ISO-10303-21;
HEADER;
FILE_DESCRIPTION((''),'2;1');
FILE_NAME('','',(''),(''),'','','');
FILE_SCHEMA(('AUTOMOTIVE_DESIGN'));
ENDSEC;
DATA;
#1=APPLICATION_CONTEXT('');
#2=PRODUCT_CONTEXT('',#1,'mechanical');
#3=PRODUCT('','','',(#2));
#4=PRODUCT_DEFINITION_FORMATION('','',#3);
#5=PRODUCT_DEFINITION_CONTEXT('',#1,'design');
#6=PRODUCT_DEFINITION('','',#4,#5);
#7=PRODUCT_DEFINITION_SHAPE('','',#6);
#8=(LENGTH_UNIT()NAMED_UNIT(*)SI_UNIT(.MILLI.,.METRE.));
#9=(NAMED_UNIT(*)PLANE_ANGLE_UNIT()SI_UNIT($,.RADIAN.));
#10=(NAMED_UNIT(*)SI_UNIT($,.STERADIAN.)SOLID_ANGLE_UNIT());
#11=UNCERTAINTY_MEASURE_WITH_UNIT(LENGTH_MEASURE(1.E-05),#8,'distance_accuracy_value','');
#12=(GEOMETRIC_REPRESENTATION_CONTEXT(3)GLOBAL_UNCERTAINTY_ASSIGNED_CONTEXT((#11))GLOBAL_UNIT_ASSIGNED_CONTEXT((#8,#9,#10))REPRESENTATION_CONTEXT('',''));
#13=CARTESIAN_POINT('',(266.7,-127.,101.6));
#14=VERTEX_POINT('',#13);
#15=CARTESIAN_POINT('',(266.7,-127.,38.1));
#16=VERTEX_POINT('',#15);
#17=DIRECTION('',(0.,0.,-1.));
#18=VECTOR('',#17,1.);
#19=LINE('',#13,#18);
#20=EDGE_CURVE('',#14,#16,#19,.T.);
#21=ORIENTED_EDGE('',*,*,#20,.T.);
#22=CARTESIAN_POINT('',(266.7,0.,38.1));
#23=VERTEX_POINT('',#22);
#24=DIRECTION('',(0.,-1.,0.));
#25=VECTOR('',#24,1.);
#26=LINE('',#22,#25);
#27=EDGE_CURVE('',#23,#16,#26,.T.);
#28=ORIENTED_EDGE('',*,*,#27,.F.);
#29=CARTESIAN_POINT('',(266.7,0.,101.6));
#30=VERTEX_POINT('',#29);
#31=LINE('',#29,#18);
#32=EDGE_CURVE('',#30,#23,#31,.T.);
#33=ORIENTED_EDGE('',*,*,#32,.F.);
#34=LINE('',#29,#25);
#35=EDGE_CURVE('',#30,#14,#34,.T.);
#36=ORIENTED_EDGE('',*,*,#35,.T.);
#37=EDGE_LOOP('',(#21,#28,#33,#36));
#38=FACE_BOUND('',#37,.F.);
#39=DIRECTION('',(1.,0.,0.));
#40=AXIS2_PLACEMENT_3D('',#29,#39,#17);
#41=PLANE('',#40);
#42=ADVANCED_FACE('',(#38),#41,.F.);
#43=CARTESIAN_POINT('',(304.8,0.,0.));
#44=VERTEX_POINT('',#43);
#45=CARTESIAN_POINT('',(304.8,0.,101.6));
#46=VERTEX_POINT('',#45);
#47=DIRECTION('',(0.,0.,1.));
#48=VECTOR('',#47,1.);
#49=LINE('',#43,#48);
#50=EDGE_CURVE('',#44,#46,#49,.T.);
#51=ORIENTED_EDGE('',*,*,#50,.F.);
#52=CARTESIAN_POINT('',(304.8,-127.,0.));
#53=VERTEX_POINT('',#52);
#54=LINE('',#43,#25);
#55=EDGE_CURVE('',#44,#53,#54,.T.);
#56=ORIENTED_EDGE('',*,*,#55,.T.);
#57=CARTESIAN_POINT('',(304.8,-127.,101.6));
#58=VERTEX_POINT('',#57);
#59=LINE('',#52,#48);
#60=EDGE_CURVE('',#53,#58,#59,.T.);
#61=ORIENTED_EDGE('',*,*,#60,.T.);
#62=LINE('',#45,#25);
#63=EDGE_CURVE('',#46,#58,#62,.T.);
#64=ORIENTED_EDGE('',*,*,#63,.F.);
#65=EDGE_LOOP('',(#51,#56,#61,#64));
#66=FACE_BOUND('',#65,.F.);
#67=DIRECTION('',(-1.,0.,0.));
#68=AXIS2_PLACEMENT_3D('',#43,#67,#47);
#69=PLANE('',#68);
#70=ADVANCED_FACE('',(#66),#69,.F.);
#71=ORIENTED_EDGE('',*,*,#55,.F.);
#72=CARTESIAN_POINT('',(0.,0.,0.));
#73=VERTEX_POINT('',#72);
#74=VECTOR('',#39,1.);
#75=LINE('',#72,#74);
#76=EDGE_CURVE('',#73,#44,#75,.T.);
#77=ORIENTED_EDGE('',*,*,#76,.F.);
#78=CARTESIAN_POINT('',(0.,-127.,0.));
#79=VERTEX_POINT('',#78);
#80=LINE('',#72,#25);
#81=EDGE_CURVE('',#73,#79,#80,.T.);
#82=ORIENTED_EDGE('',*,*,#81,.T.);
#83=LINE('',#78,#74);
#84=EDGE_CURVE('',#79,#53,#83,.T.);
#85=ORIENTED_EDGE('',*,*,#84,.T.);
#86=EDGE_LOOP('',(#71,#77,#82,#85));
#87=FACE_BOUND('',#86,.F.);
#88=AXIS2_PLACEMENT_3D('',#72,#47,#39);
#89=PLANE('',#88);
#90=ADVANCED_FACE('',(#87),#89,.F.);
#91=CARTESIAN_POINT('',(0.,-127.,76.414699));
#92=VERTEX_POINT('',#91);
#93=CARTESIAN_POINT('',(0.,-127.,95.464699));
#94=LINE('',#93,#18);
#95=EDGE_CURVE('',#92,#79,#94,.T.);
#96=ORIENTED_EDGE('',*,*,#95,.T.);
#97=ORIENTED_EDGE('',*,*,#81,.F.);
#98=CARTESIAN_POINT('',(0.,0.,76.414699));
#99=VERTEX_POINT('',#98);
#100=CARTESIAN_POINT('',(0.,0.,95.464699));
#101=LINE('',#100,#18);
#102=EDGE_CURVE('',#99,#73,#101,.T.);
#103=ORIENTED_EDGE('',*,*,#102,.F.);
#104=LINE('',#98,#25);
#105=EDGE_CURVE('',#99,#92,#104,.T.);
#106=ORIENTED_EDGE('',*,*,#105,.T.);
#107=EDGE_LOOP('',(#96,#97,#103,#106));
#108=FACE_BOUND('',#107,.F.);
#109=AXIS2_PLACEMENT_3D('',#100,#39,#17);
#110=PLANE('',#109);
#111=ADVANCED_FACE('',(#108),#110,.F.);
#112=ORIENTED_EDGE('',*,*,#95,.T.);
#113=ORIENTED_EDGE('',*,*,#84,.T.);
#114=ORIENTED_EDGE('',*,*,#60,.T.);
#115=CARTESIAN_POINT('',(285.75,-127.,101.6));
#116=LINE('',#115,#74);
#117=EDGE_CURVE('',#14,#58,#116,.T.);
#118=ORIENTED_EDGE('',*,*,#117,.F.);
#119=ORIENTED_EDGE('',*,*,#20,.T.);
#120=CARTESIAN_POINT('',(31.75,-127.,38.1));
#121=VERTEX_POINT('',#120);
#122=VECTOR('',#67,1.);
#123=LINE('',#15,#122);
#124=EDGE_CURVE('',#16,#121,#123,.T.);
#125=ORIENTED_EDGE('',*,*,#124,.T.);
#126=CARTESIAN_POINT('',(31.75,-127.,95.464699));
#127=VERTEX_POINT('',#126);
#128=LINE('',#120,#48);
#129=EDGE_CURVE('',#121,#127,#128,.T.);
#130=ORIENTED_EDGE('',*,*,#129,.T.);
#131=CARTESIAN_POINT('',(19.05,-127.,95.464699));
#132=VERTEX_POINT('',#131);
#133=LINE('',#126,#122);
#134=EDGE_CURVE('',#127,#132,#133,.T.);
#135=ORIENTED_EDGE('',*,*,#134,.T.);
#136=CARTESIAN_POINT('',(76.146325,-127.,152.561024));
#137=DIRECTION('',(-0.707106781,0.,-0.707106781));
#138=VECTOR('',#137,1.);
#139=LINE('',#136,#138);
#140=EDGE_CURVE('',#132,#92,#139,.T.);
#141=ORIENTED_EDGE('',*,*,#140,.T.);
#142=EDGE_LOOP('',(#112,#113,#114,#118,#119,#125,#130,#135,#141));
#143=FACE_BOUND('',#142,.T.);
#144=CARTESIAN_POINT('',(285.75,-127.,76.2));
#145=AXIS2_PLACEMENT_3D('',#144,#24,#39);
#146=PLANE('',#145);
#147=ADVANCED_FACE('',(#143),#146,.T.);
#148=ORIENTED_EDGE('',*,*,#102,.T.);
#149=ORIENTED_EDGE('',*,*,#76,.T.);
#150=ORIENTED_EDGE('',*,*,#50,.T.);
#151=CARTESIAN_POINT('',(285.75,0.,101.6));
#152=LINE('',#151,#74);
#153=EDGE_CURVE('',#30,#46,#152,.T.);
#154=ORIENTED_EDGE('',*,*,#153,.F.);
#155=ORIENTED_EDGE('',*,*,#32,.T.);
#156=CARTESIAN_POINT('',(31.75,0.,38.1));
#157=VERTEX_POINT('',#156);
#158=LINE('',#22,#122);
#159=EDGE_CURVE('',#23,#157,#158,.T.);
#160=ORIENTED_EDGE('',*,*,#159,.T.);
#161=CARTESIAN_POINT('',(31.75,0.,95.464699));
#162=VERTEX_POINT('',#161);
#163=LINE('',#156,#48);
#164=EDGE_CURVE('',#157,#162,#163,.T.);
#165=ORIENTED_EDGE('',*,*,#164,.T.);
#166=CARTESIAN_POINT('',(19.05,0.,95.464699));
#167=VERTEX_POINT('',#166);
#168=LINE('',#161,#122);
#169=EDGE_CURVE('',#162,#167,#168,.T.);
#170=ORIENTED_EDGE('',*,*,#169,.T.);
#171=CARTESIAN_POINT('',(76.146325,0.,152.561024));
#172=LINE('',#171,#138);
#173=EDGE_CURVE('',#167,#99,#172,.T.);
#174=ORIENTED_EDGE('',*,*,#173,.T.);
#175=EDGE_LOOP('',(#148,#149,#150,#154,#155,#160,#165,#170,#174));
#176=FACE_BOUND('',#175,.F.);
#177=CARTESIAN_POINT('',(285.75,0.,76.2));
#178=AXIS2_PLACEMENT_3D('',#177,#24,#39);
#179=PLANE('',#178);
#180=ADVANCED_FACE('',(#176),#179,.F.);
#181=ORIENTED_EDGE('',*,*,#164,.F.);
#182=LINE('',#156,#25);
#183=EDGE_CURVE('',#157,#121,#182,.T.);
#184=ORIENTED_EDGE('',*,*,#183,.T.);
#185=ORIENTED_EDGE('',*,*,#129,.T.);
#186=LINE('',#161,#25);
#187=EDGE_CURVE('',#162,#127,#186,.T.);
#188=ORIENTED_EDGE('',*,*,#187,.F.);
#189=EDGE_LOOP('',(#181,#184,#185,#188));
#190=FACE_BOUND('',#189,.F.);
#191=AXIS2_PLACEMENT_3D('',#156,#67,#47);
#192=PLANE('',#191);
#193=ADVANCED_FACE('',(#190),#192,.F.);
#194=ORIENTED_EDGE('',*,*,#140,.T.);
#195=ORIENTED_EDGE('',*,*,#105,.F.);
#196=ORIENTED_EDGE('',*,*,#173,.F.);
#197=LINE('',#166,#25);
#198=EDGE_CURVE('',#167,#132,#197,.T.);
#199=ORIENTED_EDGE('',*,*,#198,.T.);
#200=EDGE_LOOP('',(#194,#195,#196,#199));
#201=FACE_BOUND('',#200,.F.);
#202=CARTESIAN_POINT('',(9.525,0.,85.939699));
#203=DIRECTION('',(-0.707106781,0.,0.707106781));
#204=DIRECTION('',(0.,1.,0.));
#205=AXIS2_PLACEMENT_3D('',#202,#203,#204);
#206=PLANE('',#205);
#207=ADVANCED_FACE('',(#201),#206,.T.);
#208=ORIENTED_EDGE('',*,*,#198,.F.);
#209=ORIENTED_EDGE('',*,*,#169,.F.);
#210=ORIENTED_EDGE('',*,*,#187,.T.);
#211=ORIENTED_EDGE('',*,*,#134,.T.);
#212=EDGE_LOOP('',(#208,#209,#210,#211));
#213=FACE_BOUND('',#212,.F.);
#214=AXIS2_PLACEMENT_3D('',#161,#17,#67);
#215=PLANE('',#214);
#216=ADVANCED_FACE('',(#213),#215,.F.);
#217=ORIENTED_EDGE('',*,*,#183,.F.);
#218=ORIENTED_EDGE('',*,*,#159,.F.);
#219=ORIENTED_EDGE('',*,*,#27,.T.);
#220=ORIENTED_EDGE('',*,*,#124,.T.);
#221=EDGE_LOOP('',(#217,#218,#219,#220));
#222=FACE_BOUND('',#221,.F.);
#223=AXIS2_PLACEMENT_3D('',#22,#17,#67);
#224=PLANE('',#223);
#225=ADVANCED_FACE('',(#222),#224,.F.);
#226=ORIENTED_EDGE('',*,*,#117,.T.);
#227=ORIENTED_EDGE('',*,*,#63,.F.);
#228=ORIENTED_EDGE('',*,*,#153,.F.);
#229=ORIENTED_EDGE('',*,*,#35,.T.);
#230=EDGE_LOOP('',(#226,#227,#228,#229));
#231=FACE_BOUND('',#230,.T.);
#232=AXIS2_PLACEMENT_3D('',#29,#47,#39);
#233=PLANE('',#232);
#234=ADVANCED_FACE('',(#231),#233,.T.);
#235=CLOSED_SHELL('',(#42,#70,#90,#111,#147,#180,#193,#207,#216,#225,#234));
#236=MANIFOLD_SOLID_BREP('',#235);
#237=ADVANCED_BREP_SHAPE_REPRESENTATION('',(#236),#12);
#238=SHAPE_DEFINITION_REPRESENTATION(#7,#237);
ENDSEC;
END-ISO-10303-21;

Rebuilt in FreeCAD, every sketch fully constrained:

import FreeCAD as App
import Part
import Sketcher

V = App.Vector
Q = App.Units.Quantity


def edges_at(feature, points):
    """Names of the edges that pass closest to the given points."""
    edges = feature.Shape.Edges
    near = lambda p: min(range(len(edges)), key=lambda i: edges[i].distToShape(Part.Vertex(*p))[0])
    return sorted({f"Edge{near(p) + 1}" for p in points})

doc = App.newDocument("Part")
body = doc.addObject("PartDesign::Body", "Body")

# Sketch on XZ plane
sketch1 = body.newObject("Sketcher::SketchObject", "Sketch")
sketch1.AttachmentSupport = (doc.getObject("XZ_Plane"), [""])
sketch1.MapMode = "FlatFace"
sketch1.addGeometry(Part.LineSegment(V(267, 102, 0), V(267, 38, 0)), False)
sketch1.addGeometry(Part.LineSegment(V(267, 38, 0), V(32, 38, 0)), False)
sketch1.addGeometry(Part.LineSegment(V(32, 38, 0), V(32, 95, 0)), False)
sketch1.addGeometry(Part.LineSegment(V(32, 95, 0), V(0, 95, 0)), False)
sketch1.addGeometry(Part.LineSegment(V(0, 95, 0), V(0, 0, 0)), False)
sketch1.addGeometry(Part.LineSegment(V(0, 0, 0), V(305, 0, 0)), False)
sketch1.addGeometry(Part.LineSegment(V(305, 0, 0), V(305, 102, 0)), False)
sketch1.addGeometry(Part.LineSegment(V(305, 102, 0), V(267, 102, 0)), False)
sketch1.addConstraint(Sketcher.Constraint("Coincident", 0, 2, 1, 1))
sketch1.addConstraint(Sketcher.Constraint("Coincident", 1, 2, 2, 1))
sketch1.addConstraint(Sketcher.Constraint("Coincident", 2, 2, 3, 1))
sketch1.addConstraint(Sketcher.Constraint("Coincident", 3, 2, 4, 1))
sketch1.addConstraint(Sketcher.Constraint("Coincident", 4, 2, 5, 1))
sketch1.addConstraint(Sketcher.Constraint("Coincident", 5, 2, 6, 1))
sketch1.addConstraint(Sketcher.Constraint("Coincident", 6, 2, 7, 1))
sketch1.addConstraint(Sketcher.Constraint("Coincident", 7, 2, 0, 1))
sketch1.addConstraint(Sketcher.Constraint("Vertical", 0))
sketch1.addConstraint(Sketcher.Constraint("Horizontal", 1))
sketch1.addConstraint(Sketcher.Constraint("Vertical", 2))
sketch1.addConstraint(Sketcher.Constraint("Horizontal", 3))
sketch1.addConstraint(Sketcher.Constraint("Vertical", 4))
sketch1.addConstraint(Sketcher.Constraint("Horizontal", 5))
sketch1.addConstraint(Sketcher.Constraint("Vertical", 6))
sketch1.addConstraint(Sketcher.Constraint("Horizontal", 7))
sketch1.addConstraint(Sketcher.Constraint("Coincident", 4, 2, -1, 1))
sketch1.addConstraint(Sketcher.Constraint("DistanceX", 5, 1, 5, 2, Q("12 in")))
sketch1.addConstraint(Sketcher.Constraint("DistanceY", 6, 1, 6, 2, Q("4 in")))
sketch1.addConstraint(Sketcher.Constraint("DistanceX", 7, 2, 7, 1, Q("1.5 in")))
sketch1.addConstraint(Sketcher.Constraint("DistanceY", 0, 2, 0, 1, Q("2.5 in")))
sketch1.addConstraint(Sketcher.Constraint("DistanceX", 1, 2, 1, 1, Q("9.25 in")))
sketch1.addConstraint(Sketcher.Constraint("DistanceY", 2, 1, 2, 2, Q("57.364699 mm")))
pad1 = body.newObject("PartDesign::Pad", "Pad")
pad1.Profile = sketch1
pad1.Length = Q("5 in")
doc.recompute()

chamfer = body.newObject("PartDesign::Chamfer", "Chamfer")
chamfer.Base = (pad1, edges_at(pad1, [(0, -63.5, 95.465)]))
chamfer.ChamferType = "Two distances"
chamfer.Size = Q("0.75 in")
chamfer.Size2 = Q("0.75 in")

doc.recompute()
